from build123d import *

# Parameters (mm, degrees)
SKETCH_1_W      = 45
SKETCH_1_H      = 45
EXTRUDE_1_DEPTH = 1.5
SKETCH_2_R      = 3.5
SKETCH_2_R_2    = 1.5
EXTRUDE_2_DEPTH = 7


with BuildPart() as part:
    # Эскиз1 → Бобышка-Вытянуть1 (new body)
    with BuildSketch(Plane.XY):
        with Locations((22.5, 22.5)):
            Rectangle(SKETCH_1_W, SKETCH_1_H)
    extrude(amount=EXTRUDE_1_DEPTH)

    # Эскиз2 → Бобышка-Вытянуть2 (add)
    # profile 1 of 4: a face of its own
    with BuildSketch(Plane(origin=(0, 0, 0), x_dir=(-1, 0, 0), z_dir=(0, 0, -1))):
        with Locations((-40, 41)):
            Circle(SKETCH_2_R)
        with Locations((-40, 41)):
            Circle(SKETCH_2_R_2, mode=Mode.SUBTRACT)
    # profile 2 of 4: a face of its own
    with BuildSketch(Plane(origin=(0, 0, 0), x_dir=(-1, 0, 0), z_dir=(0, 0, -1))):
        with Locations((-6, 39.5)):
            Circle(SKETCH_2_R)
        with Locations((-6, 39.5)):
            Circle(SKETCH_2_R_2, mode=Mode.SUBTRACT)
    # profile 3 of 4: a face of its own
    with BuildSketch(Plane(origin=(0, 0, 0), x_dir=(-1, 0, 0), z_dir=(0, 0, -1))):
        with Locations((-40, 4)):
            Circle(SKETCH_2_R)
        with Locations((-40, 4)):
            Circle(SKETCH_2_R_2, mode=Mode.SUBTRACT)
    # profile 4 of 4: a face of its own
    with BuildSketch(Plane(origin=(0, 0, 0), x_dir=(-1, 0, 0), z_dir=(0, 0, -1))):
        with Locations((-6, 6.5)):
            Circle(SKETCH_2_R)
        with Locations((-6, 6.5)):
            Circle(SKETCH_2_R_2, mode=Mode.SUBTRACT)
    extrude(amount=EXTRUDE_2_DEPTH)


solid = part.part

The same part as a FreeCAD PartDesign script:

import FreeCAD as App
import Part
import Sketcher
from FreeCAD import Vector

doc = App.newDocument("Part")
body = doc.addObject("PartDesign::Body", "Body")

sketch1 = body.newObject("Sketcher::SketchObject", "Sketch")
sketch1.AttachmentSupport = (doc.getObject("XY_Plane"), [""])
sketch1.MapMode = "FlatFace"
sketch1.addGeometry([
    Part.LineSegment(Vector(0, 45, 0), Vector(0, 0, 0)),
    Part.LineSegment(Vector(0, 0, 0), Vector(45, 0, 0)),
    Part.LineSegment(Vector(45, 0, 0), Vector(45, 45, 0)),
    Part.LineSegment(Vector(45, 45, 0), Vector(0, 45, 0)),
], False)
sketch1.addConstraint([
    Sketcher.Constraint("Coincident", 0, 2, 1, 1),
    Sketcher.Constraint("Coincident", 1, 2, 2, 1),
    Sketcher.Constraint("Coincident", 2, 2, 3, 1),
    Sketcher.Constraint("Coincident", 3, 2, 0, 1),
    Sketcher.Constraint("Vertical", 0),
    Sketcher.Constraint("Horizontal", 1),
    Sketcher.Constraint("Vertical", 2),
    Sketcher.Constraint("Horizontal", 3),
    Sketcher.Constraint("Coincident", 0, 2, -1, 1),
    Sketcher.Constraint("Equal", 3, 0),
    Sketcher.Constraint("DistanceX", 1, 1, 1, 2, 45.0),
])
pad1 = body.newObject("PartDesign::Pad", "Pad")
pad1.Profile = sketch1
pad1.Length = 1.5

sketch2 = body.newObject("Sketcher::SketchObject", "Sketch001")
sketch2.AttachmentSupport = (doc.getObject("XY_Plane"), [""])
sketch2.MapMode = "FlatFace"
sketch2.addGeometry([
    Part.Circle(Vector(40, 41, 0), Vector(0, 0, 1), 3.5),
    Part.Circle(Vector(40, 41, 0), Vector(0, 0, 1), 1.5),
    Part.Circle(Vector(6, 39.5, 0), Vector(0, 0, 1), 3.5),
    Part.Circle(Vector(6, 39.5, 0), Vector(0, 0, 1), 1.5),
    Part.Circle(Vector(40, 4, 0), Vector(0, 0, 1), 3.5),
    Part.Circle(Vector(40, 4, 0), Vector(0, 0, 1), 1.5),
    Part.Circle(Vector(6, 6.5, 0), Vector(0, 0, 1), 3.5),
    Part.Circle(Vector(6, 6.5, 0), Vector(0, 0, 1), 1.5),
], False)
sketch2.addConstraint([
    Sketcher.Constraint("Coincident", 1, 3, 0, 3),
    Sketcher.Constraint("Coincident", 3, 3, 2, 3),
    Sketcher.Constraint("Coincident", 5, 3, 4, 3),
    Sketcher.Constraint("Coincident", 7, 3, 6, 3),
    Sketcher.Constraint("Equal", 0, 2),
    Sketcher.Constraint("Equal", 1, 3),
    Sketcher.Constraint("Equal", 2, 4),
    Sketcher.Constraint("Equal", 3, 5),
    Sketcher.Constraint("Equal", 4, 6),
    Sketcher.Constraint("Equal", 5, 7),
    Sketcher.Constraint("Vertical", 1, 3, 4, 3),
    Sketcher.Constraint("Vertical", 3, 3, 6, 3),
    Sketcher.Constraint("Diameter", 0, 7.0),
    Sketcher.Constraint("Diameter", 1, 3.0),
    Sketcher.Constraint("DistanceX", -1, 1, 0, 3, 40.0),
    Sketcher.Constraint("DistanceY", -1, 1, 0, 3, 41.0),
    Sketcher.Constraint("DistanceX", -1, 1, 2, 3, 6.0),
    Sketcher.Constraint("DistanceY", -1, 1, 4, 3, 4.0),
    Sketcher.Constraint("DistanceY", 6, 3, 2, 3, 33.0),
    Sketcher.Constraint("DistanceY", -1, 1, 2, 3, 39.5),
])
pad2 = body.newObject("PartDesign::Pad", "Pad001")
pad2.Profile = sketch2
pad2.Length = 7
pad2.Reversed = True

doc.recompute()
